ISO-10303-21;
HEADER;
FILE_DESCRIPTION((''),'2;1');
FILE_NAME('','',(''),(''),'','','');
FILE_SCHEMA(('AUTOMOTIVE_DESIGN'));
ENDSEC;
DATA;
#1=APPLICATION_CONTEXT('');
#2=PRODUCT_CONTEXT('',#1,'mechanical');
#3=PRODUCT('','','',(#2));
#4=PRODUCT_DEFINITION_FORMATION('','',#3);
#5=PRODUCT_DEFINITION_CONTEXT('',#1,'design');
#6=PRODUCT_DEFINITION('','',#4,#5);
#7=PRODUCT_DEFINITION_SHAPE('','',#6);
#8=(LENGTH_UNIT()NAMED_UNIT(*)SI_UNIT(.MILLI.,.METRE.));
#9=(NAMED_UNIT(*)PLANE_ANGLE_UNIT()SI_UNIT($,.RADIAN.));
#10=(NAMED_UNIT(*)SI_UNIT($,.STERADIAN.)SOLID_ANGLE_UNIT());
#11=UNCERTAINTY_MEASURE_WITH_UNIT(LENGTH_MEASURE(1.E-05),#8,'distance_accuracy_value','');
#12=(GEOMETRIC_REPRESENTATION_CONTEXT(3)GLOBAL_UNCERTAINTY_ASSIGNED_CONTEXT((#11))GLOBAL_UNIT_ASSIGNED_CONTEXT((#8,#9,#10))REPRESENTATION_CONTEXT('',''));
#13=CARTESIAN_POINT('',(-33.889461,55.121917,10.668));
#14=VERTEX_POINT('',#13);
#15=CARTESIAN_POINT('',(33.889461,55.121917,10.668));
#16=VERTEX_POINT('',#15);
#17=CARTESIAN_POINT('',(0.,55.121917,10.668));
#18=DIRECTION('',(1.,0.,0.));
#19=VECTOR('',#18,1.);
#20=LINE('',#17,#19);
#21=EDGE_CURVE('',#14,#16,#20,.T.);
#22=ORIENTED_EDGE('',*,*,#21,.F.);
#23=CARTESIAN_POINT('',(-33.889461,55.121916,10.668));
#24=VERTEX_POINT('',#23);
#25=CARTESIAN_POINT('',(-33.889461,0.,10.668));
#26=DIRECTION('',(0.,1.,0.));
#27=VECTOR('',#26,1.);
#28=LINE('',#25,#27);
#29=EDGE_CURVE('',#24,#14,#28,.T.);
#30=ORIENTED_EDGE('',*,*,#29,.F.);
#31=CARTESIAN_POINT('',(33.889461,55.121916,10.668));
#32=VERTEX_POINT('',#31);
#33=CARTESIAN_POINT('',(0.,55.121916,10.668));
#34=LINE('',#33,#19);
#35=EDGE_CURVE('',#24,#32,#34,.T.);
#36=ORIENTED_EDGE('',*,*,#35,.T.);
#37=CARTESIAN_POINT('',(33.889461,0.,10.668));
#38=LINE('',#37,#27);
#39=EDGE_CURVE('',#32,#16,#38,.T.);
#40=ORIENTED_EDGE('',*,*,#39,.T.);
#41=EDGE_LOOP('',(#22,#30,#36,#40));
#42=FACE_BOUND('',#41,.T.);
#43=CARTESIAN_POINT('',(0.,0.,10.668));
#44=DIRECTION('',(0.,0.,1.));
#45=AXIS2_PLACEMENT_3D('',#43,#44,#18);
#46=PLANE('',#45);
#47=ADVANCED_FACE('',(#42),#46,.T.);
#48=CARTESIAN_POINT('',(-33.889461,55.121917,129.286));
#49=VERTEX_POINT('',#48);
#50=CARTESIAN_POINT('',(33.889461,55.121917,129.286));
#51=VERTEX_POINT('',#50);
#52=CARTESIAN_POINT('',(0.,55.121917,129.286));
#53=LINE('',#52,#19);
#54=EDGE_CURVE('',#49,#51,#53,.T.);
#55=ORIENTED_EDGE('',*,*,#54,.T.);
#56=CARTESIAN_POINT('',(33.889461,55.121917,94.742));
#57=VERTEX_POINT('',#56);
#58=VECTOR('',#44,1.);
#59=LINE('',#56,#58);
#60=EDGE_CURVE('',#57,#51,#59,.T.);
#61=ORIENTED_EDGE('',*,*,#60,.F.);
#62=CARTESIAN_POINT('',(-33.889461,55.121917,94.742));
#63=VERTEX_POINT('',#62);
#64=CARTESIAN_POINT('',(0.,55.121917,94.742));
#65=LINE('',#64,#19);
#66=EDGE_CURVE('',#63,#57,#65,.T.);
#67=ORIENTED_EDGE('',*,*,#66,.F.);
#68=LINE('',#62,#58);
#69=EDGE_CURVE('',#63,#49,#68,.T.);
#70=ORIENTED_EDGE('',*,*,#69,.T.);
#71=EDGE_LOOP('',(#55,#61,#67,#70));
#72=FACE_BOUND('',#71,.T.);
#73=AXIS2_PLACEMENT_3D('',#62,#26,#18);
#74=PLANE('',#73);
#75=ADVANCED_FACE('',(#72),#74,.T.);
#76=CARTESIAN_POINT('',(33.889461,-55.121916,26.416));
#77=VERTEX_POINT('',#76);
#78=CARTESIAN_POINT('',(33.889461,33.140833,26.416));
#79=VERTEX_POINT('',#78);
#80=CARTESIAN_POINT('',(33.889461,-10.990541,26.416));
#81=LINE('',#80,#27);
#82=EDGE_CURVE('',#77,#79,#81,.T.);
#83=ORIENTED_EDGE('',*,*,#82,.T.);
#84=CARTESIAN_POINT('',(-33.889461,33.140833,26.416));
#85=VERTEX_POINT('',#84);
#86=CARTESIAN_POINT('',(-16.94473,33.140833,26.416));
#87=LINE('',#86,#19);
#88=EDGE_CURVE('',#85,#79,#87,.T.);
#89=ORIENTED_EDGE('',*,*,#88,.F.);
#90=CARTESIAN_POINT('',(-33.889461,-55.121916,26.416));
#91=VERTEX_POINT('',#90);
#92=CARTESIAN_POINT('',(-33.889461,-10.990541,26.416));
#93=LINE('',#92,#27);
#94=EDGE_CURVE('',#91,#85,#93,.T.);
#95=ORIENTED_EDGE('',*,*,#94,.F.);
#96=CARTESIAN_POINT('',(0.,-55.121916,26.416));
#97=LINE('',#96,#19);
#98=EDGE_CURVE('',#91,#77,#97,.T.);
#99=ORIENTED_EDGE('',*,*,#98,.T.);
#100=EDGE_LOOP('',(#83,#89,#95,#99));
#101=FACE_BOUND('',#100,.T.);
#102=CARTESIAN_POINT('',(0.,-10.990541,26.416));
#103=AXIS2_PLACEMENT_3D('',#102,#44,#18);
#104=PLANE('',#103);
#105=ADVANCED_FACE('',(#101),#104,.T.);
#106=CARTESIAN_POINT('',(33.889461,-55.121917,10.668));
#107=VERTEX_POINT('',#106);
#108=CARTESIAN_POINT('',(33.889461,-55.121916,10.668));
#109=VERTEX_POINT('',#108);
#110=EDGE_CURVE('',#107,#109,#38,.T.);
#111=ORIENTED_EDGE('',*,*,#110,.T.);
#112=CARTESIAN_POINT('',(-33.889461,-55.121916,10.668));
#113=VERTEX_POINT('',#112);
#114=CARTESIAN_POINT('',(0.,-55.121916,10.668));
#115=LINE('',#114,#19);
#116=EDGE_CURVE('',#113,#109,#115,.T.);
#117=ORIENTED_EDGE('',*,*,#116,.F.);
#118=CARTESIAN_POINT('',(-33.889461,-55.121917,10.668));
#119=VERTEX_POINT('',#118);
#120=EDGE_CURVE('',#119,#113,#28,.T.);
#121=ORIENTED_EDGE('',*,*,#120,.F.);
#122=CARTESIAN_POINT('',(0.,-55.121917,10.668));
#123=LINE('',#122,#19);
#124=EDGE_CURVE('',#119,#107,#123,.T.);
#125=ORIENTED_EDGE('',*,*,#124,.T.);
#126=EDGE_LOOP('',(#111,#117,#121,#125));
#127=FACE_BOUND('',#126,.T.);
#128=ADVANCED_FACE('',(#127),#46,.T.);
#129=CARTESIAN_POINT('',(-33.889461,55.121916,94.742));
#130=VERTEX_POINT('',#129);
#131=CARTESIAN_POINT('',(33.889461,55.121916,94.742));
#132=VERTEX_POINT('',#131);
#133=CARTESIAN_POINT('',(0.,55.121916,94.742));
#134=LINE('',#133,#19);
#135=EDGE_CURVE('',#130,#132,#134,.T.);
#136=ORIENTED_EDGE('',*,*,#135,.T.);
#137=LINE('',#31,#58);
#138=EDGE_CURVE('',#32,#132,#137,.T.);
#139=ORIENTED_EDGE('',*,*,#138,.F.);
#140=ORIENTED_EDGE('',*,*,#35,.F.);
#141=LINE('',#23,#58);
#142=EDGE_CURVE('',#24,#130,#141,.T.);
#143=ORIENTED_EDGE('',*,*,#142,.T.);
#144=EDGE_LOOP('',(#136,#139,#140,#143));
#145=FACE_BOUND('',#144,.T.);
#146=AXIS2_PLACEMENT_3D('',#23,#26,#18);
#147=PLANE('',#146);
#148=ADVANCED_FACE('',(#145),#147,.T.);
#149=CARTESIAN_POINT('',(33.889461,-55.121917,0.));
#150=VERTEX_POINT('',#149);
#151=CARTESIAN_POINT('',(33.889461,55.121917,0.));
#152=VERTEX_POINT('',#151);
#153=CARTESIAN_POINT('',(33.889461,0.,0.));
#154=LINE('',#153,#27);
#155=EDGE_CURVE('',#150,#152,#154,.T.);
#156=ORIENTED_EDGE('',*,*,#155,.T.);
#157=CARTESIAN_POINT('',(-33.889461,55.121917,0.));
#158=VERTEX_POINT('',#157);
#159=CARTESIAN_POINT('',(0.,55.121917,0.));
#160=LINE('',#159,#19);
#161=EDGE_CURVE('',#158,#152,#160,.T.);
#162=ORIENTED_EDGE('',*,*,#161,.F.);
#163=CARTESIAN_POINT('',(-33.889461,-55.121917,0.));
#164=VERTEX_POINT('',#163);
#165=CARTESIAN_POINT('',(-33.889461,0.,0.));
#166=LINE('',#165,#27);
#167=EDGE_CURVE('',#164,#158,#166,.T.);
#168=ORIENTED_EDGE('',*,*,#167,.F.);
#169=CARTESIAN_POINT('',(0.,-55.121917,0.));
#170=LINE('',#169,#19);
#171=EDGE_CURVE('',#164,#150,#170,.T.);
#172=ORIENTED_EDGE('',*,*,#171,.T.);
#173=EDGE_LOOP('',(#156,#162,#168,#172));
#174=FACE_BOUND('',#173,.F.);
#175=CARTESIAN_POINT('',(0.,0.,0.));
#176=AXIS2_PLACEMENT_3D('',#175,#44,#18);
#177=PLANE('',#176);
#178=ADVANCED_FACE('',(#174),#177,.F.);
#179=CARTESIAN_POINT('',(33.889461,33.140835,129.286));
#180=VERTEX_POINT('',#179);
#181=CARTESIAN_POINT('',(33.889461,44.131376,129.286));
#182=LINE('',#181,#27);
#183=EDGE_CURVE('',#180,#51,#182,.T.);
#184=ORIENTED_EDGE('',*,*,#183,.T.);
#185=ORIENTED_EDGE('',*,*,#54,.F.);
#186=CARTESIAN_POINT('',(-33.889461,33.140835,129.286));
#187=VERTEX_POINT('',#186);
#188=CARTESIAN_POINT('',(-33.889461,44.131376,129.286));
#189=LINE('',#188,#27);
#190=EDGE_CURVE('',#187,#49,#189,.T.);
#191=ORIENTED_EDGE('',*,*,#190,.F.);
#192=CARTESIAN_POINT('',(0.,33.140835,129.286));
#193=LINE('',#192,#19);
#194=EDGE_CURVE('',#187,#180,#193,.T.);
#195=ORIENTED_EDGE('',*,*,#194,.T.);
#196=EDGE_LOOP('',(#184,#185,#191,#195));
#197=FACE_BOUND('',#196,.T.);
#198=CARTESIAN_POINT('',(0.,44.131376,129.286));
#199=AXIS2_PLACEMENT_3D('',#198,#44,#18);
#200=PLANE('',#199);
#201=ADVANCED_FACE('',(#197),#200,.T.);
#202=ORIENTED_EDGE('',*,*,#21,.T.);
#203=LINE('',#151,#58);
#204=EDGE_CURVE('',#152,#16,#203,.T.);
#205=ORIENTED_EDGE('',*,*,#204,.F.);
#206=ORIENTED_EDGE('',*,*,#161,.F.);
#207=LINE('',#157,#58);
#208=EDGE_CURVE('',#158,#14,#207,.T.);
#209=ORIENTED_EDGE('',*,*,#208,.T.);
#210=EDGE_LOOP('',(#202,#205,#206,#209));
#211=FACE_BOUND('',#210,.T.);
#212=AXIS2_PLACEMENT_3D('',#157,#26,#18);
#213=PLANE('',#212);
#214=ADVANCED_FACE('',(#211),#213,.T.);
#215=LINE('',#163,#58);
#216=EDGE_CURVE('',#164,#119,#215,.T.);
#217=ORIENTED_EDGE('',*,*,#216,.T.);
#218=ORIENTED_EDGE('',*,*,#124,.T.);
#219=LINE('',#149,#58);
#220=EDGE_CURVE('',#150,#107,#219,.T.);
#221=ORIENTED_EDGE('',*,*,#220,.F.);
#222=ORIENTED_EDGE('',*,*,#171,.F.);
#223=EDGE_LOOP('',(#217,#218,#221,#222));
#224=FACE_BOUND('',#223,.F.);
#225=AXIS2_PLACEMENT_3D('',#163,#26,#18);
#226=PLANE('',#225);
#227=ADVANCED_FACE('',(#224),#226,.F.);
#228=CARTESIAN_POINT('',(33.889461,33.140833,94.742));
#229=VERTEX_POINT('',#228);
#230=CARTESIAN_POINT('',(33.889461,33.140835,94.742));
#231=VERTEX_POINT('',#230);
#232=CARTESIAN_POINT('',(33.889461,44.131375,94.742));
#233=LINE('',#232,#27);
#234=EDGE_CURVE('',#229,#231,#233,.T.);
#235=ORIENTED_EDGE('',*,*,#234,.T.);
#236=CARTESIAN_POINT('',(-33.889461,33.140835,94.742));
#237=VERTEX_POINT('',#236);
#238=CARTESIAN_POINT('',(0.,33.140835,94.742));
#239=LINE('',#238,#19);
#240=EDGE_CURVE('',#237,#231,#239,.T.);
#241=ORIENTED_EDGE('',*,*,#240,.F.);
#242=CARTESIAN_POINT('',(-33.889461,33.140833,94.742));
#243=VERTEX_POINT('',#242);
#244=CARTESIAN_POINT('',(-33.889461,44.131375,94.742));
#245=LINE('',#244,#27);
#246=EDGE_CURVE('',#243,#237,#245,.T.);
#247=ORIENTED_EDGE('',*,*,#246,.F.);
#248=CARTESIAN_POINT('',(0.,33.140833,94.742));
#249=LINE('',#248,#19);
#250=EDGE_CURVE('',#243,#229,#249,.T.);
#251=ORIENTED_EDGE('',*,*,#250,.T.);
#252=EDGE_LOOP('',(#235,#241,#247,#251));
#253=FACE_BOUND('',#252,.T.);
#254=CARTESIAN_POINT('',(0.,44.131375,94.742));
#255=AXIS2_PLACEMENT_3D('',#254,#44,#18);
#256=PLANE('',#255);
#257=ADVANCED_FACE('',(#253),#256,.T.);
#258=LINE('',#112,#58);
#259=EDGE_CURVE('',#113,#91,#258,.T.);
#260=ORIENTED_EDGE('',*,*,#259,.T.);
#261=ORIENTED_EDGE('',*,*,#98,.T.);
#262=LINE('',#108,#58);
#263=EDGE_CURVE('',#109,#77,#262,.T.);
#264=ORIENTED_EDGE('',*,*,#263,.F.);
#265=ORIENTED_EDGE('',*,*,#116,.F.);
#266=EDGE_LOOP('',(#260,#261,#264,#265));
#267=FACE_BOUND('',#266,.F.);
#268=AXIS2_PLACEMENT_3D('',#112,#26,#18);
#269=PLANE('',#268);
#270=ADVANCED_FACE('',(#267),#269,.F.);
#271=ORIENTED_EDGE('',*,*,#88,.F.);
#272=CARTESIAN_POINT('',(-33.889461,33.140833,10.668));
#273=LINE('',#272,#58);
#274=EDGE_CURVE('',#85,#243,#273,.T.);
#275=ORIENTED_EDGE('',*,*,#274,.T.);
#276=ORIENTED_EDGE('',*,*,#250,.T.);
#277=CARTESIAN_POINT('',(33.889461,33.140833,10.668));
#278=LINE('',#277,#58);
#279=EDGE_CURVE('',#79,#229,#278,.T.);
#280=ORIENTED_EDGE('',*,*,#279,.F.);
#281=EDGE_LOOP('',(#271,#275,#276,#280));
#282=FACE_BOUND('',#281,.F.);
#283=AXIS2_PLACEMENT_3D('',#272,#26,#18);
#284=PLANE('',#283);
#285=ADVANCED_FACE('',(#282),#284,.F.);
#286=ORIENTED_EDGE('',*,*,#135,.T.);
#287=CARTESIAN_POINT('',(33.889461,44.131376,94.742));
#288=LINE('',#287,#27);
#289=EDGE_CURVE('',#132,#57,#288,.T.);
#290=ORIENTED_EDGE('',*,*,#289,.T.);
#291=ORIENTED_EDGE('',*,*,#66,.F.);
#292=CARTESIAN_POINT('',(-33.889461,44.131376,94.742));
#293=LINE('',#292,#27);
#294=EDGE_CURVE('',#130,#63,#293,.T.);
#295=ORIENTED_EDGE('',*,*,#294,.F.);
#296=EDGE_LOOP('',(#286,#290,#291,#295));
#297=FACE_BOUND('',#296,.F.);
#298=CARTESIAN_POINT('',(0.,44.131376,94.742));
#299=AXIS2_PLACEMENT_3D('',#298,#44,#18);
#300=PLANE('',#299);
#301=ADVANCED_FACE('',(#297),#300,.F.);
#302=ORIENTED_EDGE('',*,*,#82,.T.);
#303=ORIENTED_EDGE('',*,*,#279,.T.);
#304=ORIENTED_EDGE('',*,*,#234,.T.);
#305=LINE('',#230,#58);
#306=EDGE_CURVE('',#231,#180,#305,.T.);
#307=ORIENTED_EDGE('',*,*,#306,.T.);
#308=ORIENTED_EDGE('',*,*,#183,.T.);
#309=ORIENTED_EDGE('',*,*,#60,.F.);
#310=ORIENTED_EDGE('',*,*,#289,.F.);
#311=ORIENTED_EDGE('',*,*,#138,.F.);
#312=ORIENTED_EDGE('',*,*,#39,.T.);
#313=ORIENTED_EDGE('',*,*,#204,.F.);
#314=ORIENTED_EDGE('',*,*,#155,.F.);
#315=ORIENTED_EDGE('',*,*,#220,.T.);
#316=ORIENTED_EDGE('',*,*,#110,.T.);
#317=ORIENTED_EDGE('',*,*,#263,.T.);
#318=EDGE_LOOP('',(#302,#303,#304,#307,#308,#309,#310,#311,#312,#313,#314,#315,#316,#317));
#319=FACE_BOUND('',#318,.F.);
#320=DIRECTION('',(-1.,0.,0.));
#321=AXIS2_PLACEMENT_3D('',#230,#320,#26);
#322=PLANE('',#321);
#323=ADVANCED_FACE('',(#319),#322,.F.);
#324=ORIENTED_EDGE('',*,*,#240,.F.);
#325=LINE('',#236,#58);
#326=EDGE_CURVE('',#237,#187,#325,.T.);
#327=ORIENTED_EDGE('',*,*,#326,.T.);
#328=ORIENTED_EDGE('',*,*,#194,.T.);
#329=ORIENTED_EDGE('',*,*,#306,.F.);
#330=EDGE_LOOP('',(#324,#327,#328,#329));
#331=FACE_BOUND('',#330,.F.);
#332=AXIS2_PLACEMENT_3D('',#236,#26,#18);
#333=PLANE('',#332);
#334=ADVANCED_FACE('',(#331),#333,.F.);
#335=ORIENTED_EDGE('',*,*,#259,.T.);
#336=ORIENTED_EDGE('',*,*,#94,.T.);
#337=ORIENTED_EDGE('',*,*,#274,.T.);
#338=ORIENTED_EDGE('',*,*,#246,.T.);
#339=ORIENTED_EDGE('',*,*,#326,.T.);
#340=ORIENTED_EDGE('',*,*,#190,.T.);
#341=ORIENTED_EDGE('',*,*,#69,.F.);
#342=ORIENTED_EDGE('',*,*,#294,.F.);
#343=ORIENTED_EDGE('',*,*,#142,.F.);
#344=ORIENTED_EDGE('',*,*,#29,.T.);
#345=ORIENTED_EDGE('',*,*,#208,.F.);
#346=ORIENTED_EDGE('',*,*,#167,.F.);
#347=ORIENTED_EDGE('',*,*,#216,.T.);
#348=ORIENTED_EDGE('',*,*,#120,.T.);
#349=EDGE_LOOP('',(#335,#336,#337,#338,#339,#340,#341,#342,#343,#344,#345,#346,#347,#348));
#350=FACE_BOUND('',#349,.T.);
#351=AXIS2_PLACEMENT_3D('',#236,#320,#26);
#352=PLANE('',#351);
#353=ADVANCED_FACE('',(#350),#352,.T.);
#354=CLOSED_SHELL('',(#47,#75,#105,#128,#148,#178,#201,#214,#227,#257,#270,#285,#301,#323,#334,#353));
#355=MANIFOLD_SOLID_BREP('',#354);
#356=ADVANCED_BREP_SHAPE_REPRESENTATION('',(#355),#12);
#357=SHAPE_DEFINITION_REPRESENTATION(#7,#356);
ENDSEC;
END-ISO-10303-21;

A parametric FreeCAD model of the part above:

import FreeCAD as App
import Part
import Sketcher
from FreeCAD import Vector
Q = App.Units.Quantity

doc = App.newDocument("Part")
body = doc.addObject("PartDesign::Body", "Body")

sketch1 = body.newObject("Sketcher::SketchObject", "Sketch")
sketch1.AttachmentSupport = (doc.getObject("XY_Plane"), [""])
sketch1.MapMode = "FlatFace"
sketch1.addGeometry(Part.LineSegment(Vector(-34, 55, 0), Vector(-34, -55, 0)), False)
sketch1.addGeometry(Part.LineSegment(Vector(-34, -55, 0), Vector(34, -55, 0)), False)
sketch1.addGeometry(Part.LineSegment(Vector(34, -55, 0), Vector(34, 55, 0)), False)
sketch1.addGeometry(Part.LineSegment(Vector(34, 55, 0), Vector(-34, 55, 0)), False)
sketch1.addConstraint(Sketcher.Constraint("Coincident", 0, 2, 1, 1))
sketch1.addConstraint(Sketcher.Constraint("Coincident", 1, 2, 2, 1))
sketch1.addConstraint(Sketcher.Constraint("Coincident", 2, 2, 3, 1))
sketch1.addConstraint(Sketcher.Constraint("Coincident", 3, 2, 0, 1))
sketch1.addConstraint(Sketcher.Constraint("Vertical", 0))
sketch1.addConstraint(Sketcher.Constraint("Horizontal", 1))
sketch1.addConstraint(Sketcher.Constraint("Vertical", 2))
sketch1.addConstraint(Sketcher.Constraint("Horizontal", 3))
sketch1.addConstraint(Sketcher.Constraint("Symmetric", 0, 2, 2, 2, -1, 1))
sketch1.addConstraint(Sketcher.Constraint("DistanceX", 1, 1, 1, 2, 67.778922))
sketch1.addConstraint(Sketcher.Constraint("DistanceY", 0, 2, 0, 1, 110.243834))
pad1 = body.newObject("PartDesign::Pad", "Pad")
pad1.Profile = sketch1
pad1.Length = Q("0.42 in")

sketch2 = body.newObject("Sketcher::SketchObject", "Sketch001")
sketch2.AttachmentSupport = (doc.getObject("XY_Plane"), [""])
sketch2.MapMode = "FlatFace"
sketch2.AttachmentOffset = App.Placement(Vector(0, 0, 0.42 * 25.4), App.Rotation())
sketch2.addGeometry(Part.LineSegment(Vector(-34, 55, 0), Vector(-34, 33, 0)), False)
sketch2.addGeometry(Part.LineSegment(Vector(-34, 33, 0), Vector(34, 33, 0)), False)
sketch2.addGeometry(Part.LineSegment(Vector(34, 33, 0), Vector(34, 55, 0)), False)
sketch2.addGeometry(Part.LineSegment(Vector(34, 55, 0), Vector(-34, 55, 0)), False)
sketch2.addConstraint(Sketcher.Constraint("Coincident", 0, 2, 1, 1))
sketch2.addConstraint(Sketcher.Constraint("Coincident", 1, 2, 2, 1))
sketch2.addConstraint(Sketcher.Constraint("Coincident", 2, 2, 3, 1))
sketch2.addConstraint(Sketcher.Constraint("Coincident", 3, 2, 0, 1))
sketch2.addConstraint(Sketcher.Constraint("Vertical", 0))
sketch2.addConstraint(Sketcher.Constraint("Horizontal", 1))
sketch2.addConstraint(Sketcher.Constraint("Vertical", 2))
sketch2.addConstraint(Sketcher.Constraint("Horizontal", 3))
sketch2.addConstraint(Sketcher.Constraint("DistanceX", 1, 1, 1, 2, 67.778922))
sketch2.addConstraint(Sketcher.Constraint("DistanceY", 0, 2, 0, 1, 21.981083))
sketch2.addConstraint(Sketcher.Constraint("DistanceX", 0, 2, -1, 1, 33.889461))
sketch2.addConstraint(Sketcher.Constraint("DistanceY", -1, 1, 0, 2, 33.140833))
pad2 = body.newObject("PartDesign::Pad", "Pad001")
pad2.Profile = sketch2
pad2.Length = Q("3.31 in")

sketch3 = body.newObject("Sketcher::SketchObject", "Sketch002")
sketch3.AttachmentSupport = (doc.getObject("XY_Plane"), [""])
sketch3.MapMode = "FlatFace"
sketch3.AttachmentOffset = App.Placement(Vector(0, 0, 0.42 * 25.4), App.Rotation())
sketch3.addGeometry(Part.LineSegment(Vector(-34, 33, 0), Vector(-34, -55, 0)), False)
sketch3.addGeometry(Part.LineSegment(Vector(-34, -55, 0), Vector(34, -55, 0)), False)
sketch3.addGeometry(Part.LineSegment(Vector(34, -55, 0), Vector(34, 33, 0)), False)
sketch3.addGeometry(Part.LineSegment(Vector(34, 33, 0), Vector(-34, 33, 0)), False)
sketch3.addConstraint(Sketcher.Constraint("Coincident", 0, 2, 1, 1))
sketch3.addConstraint(Sketcher.Constraint("Coincident", 1, 2, 2, 1))
sketch3.addConstraint(Sketcher.Constraint("Coincident", 2, 2, 3, 1))
sketch3.addConstraint(Sketcher.Constraint("Coincident", 3, 2, 0, 1))
sketch3.addConstraint(Sketcher.Constraint("Vertical", 0))
sketch3.addConstraint(Sketcher.Constraint("Horizontal", 1))
sketch3.addConstraint(Sketcher.Constraint("Vertical", 2))
sketch3.addConstraint(Sketcher.Constraint("Horizontal", 3))
sketch3.addConstraint(Sketcher.Constraint("DistanceX", 1, 1, 1, 2, 67.778922))
sketch3.addConstraint(Sketcher.Constraint("DistanceY", 0, 2, 0, 1, 88.262751))
sketch3.addConstraint(Sketcher.Constraint("DistanceX", 0, 2, -1, 1, 33.889461))
sketch3.addConstraint(Sketcher.Constraint("DistanceY", 0, 2, -1, 1, 55.121916))
pad3 = body.newObject("PartDesign::Pad", "Pad002")
pad3.Profile = sketch3
pad3.Length = Q("0.62 in")

sketch4 = body.newObject("Sketcher::SketchObject", "Sketch003")
sketch4.AttachmentSupport = (doc.getObject("XY_Plane"), [""])
sketch4.MapMode = "FlatFace"
sketch4.AttachmentOffset = App.Placement(Vector(0, 0, 3.73 * 25.4), App.Rotation())
sketch4.addGeometry(Part.LineSegment(Vector(-34, 55, 0), Vector(-34, 33, 0)), False)
sketch4.addGeometry(Part.LineSegment(Vector(-34, 33, 0), Vector(34, 33, 0)), False)
sketch4.addGeometry(Part.LineSegment(Vector(34, 33, 0), Vector(34, 55, 0)), False)
sketch4.addGeometry(Part.LineSegment(Vector(34, 55, 0), Vector(-34, 55, 0)), False)
sketch4.addConstraint(Sketcher.Constraint("Coincident", 0, 2, 1, 1))
sketch4.addConstraint(Sketcher.Constraint("Coincident", 1, 2, 2, 1))
sketch4.addConstraint(Sketcher.Constraint("Coincident", 2, 2, 3, 1))
sketch4.addConstraint(Sketcher.Constraint("Coincident", 3, 2, 0, 1))
sketch4.addConstraint(Sketcher.Constraint("Vertical", 0))
sketch4.addConstraint(Sketcher.Constraint("Horizontal", 1))
sketch4.addConstraint(Sketcher.Constraint("Vertical", 2))
sketch4.addConstraint(Sketcher.Constraint("Horizontal", 3))
sketch4.addConstraint(Sketcher.Constraint("DistanceX", 1, 1, 1, 2, 67.778922))
sketch4.addConstraint(Sketcher.Constraint("DistanceY", 0, 2, 0, 1, 21.981082))
sketch4.addConstraint(Sketcher.Constraint("DistanceX", 0, 2, -1, 1, 33.889461))
sketch4.addConstraint(Sketcher.Constraint("DistanceY", -1, 1, 0, 2, 33.140835))
pad4 = body.newObject("PartDesign::Pad", "Pad003")
pad4.Profile = sketch4
pad4.Length = Q("1.36 in")

doc.recompute()
